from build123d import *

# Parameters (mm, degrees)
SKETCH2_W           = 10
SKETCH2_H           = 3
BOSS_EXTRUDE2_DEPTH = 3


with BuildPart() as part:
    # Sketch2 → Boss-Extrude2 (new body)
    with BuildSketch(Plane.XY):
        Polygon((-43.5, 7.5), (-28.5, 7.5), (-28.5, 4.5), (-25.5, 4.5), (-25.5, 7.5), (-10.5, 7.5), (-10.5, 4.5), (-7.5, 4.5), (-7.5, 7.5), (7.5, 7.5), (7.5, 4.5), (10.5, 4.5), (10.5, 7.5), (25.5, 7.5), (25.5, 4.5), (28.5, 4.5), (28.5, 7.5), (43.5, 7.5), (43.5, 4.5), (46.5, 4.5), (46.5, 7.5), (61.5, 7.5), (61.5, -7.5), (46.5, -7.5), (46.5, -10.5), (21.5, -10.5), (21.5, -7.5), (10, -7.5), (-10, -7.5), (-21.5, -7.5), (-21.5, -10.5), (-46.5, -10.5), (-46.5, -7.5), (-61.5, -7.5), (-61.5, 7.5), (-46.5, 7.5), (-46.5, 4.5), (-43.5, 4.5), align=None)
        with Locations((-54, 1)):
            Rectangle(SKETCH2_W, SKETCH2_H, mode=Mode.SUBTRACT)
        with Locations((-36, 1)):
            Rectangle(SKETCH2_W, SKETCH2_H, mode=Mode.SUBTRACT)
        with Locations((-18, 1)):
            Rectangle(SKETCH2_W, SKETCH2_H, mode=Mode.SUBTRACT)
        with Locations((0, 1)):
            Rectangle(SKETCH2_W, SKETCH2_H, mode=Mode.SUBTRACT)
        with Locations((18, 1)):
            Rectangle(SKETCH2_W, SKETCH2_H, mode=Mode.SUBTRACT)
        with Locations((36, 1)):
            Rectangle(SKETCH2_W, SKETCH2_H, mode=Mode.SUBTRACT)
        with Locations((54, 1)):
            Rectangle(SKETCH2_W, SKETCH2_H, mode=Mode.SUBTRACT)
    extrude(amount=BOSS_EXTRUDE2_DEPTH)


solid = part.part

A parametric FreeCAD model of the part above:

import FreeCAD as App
import Part
import Sketcher
Q = App.Units.Quantity

doc = App.newDocument("Part")
body = doc.addObject("PartDesign::Body", "Body")

# Sketch on XY plane
sketch1 = doc.addObject("Sketcher::SketchObject", "Sketch")
body.addObject(sketch1)
sketch1.AttachmentSupport = (doc.XY_Plane, [""])
sketch1.MapMode = "FlatFace"
sketch1.addGeometry([
    Part.LineSegment(App.Vector(-28.5, 7.5, 0), App.Vector(-43.5, 7.5, 0)),  # 0
    Part.LineSegment(App.Vector(-43.5, 7.5, 0), App.Vector(-43.5, 4.5, 0)),  # 1
    Part.LineSegment(App.Vector(-43.5, 4.5, 0), App.Vector(-46.5, 4.5, 0)),  # 2
    Part.LineSegment(App.Vector(-46.5, 4.5, 0), App.Vector(-46.5, 7.5, 0)),  # 3
    Part.LineSegment(App.Vector(-46.5, 7.5, 0), App.Vector(-61.5, 7.5, 0)),  # 4
    Part.LineSegment(App.Vector(-61.5, 7.5, 0), App.Vector(-61.5, -7.5, 0)),  # 5
    Part.LineSegment(App.Vector(-61.5, -7.5, 0), App.Vector(-46.5, -7.5, 0)),  # 6
    Part.LineSegment(App.Vector(-46.5, -7.5, 0), App.Vector(-46.5, -10.5, 0)),  # 7
    Part.LineSegment(App.Vector(-46.5, -10.5, 0), App.Vector(-21.5, -10.5, 0)),  # 8
    Part.LineSegment(App.Vector(-21.5, -10.5, 0), App.Vector(-21.5, -7.5, 0)),  # 9
    Part.LineSegment(App.Vector(-21.5, -7.5, 0), App.Vector(21.5, -7.5, 0)),  # 10
    Part.LineSegment(App.Vector(21.5, -7.5, 0), App.Vector(21.5, -10.5, 0)),  # 11
    Part.LineSegment(App.Vector(21.5, -10.5, 0), App.Vector(46.5, -10.5, 0)),  # 12
    Part.LineSegment(App.Vector(46.5, -10.5, 0), App.Vector(46.5, -7.5, 0)),  # 13
    Part.LineSegment(App.Vector(46.5, -7.5, 0), App.Vector(61.5, -7.5, 0)),  # 14
    Part.LineSegment(App.Vector(61.5, -7.5, 0), App.Vector(61.5, 7.5, 0)),  # 15
    Part.LineSegment(App.Vector(61.5, 7.5, 0), App.Vector(46.5, 7.5, 0)),  # 16
    Part.LineSegment(App.Vector(46.5, 7.5, 0), App.Vector(46.5, 4.5, 0)),  # 17
    Part.LineSegment(App.Vector(46.5, 4.5, 0), App.Vector(43.5, 4.5, 0)),  # 18
    Part.LineSegment(App.Vector(43.5, 4.5, 0), App.Vector(43.5, 7.5, 0)),  # 19
    Part.LineSegment(App.Vector(43.5, 7.5, 0), App.Vector(28.5, 7.5, 0)),  # 20
    Part.LineSegment(App.Vector(28.5, 7.5, 0), App.Vector(28.5, 4.5, 0)),  # 21
    Part.LineSegment(App.Vector(28.5, 4.5, 0), App.Vector(25.5, 4.5, 0)),  # 22
    Part.LineSegment(App.Vector(25.5, 4.5, 0), App.Vector(25.5, 7.5, 0)),  # 23
    Part.LineSegment(App.Vector(25.5, 7.5, 0), App.Vector(10.5, 7.5, 0)),  # 24
    Part.LineSegment(App.Vector(10.5, 7.5, 0), App.Vector(10.5, 4.5, 0)),  # 25
    Part.LineSegment(App.Vector(10.5, 4.5, 0), App.Vector(7.5, 4.5, 0)),  # 26
    Part.LineSegment(App.Vector(7.5, 4.5, 0), App.Vector(7.5, 7.5, 0)),  # 27
    Part.LineSegment(App.Vector(7.5, 7.5, 0), App.Vector(-7.5, 7.5, 0)),  # 28
    Part.LineSegment(App.Vector(-7.5, 7.5, 0), App.Vector(-7.5, 4.5, 0)),  # 29
    Part.LineSegment(App.Vector(-7.5, 4.5, 0), App.Vector(-10.5, 4.5, 0)),  # 30
    Part.LineSegment(App.Vector(-10.5, 4.5, 0), App.Vector(-10.5, 7.5, 0)),  # 31
    Part.LineSegment(App.Vector(-10.5, 7.5, 0), App.Vector(-25.5, 7.5, 0)),  # 32
    Part.LineSegment(App.Vector(-25.5, 7.5, 0), App.Vector(-25.5, 4.5, 0)),  # 33
    Part.LineSegment(App.Vector(-25.5, 4.5, 0), App.Vector(-28.5, 4.5, 0)),  # 34
    Part.LineSegment(App.Vector(-28.5, 4.5, 0), App.Vector(-28.5, 7.5, 0)),  # 35
    Part.LineSegment(App.Vector(49, -0.5, 0), App.Vector(49, 2.5, 0)),  # 36
    Part.LineSegment(App.Vector(49, 2.5, 0), App.Vector(59, 2.5, 0)),  # 37
    Part.LineSegment(App.Vector(59, 2.5, 0), App.Vector(59, -0.5, 0)),  # 38
    Part.LineSegment(App.Vector(59, -0.5, 0), App.Vector(49, -0.5, 0)),  # 39
    Part.LineSegment(App.Vector(31, -0.5, 0), App.Vector(31, 2.5, 0)),  # 40
    Part.LineSegment(App.Vector(31, 2.5, 0), App.Vector(41, 2.5, 0)),  # 41
    Part.LineSegment(App.Vector(41, 2.5, 0), App.Vector(41, -0.5, 0)),  # 42
    Part.LineSegment(App.Vector(41, -0.5, 0), App.Vector(31, -0.5, 0)),  # 43
    Part.LineSegment(App.Vector(13, -0.5, 0), App.Vector(13, 2.5, 0)),  # 44
    Part.LineSegment(App.Vector(13, 2.5, 0), App.Vector(23, 2.5, 0)),  # 45
    Part.LineSegment(App.Vector(23, 2.5, 0), App.Vector(23, -0.5, 0)),  # 46
    Part.LineSegment(App.Vector(23, -0.5, 0), App.Vector(13, -0.5, 0)),  # 47
    Part.LineSegment(App.Vector(-5, -0.5, 0), App.Vector(-5, 2.5, 0)),  # 48
    Part.LineSegment(App.Vector(-5, 2.5, 0), App.Vector(5, 2.5, 0)),  # 49
    Part.LineSegment(App.Vector(5, 2.5, 0), App.Vector(5, -0.5, 0)),  # 50
    Part.LineSegment(App.Vector(5, -0.5, 0), App.Vector(-5, -0.5, 0)),  # 51
    Part.LineSegment(App.Vector(-23, -0.5, 0), App.Vector(-23, 2.5, 0)),  # 52
    Part.LineSegment(App.Vector(-23, 2.5, 0), App.Vector(-13, 2.5, 0)),  # 53
    Part.LineSegment(App.Vector(-13, 2.5, 0), App.Vector(-13, -0.5, 0)),  # 54
    Part.LineSegment(App.Vector(-13, -0.5, 0), App.Vector(-23, -0.5, 0)),  # 55
    Part.LineSegment(App.Vector(-41, -0.5, 0), App.Vector(-41, 2.5, 0)),  # 56
    Part.LineSegment(App.Vector(-41, 2.5, 0), App.Vector(-31, 2.5, 0)),  # 57
    Part.LineSegment(App.Vector(-31, 2.5, 0), App.Vector(-31, -0.5, 0)),  # 58
    Part.LineSegment(App.Vector(-31, -0.5, 0), App.Vector(-41, -0.5, 0)),  # 59
    Part.LineSegment(App.Vector(-59, -0.5, 0), App.Vector(-59, 2.5, 0)),  # 60
    Part.LineSegment(App.Vector(-59, 2.5, 0), App.Vector(-49, 2.5, 0)),  # 61
    Part.LineSegment(App.Vector(-49, 2.5, 0), App.Vector(-49, -0.5, 0)),  # 62
    Part.LineSegment(App.Vector(-49, -0.5, 0), App.Vector(-59, -0.5, 0)),  # 63
], False)
sketch1.addConstraint([
    Sketcher.Constraint("Coincident", 0, 2, 1, 1),
    Sketcher.Constraint("Coincident", 1, 2, 2, 1),
    Sketcher.Constraint("Coincident", 2, 2, 3, 1),
    Sketcher.Constraint("Coincident", 3, 2, 4, 1),
    Sketcher.Constraint("Coincident", 4, 2, 5, 1),
    Sketcher.Constraint("Coincident", 5, 2, 6, 1),
    Sketcher.Constraint("Coincident", 6, 2, 7, 1),
    Sketcher.Constraint("Coincident", 7, 2, 8, 1),
    Sketcher.Constraint("Coincident", 8, 2, 9, 1),
    Sketcher.Constraint("Coincident", 9, 2, 10, 1),
    Sketcher.Constraint("Coincident", 10, 2, 11, 1),
    Sketcher.Constraint("Coincident", 11, 2, 12, 1),
    Sketcher.Constraint("Coincident", 12, 2, 13, 1),
    Sketcher.Constraint("Coincident", 13, 2, 14, 1),
    Sketcher.Constraint("Coincident", 14, 2, 15, 1),
    Sketcher.Constraint("Coincident", 15, 2, 16, 1),
    Sketcher.Constraint("Coincident", 16, 2, 17, 1),
    Sketcher.Constraint("Coincident", 17, 2, 18, 1),
    Sketcher.Constraint("Coincident", 18, 2, 19, 1),
    Sketcher.Constraint("Coincident", 19, 2, 20, 1),
    Sketcher.Constraint("Coincident", 20, 2, 21, 1),
    Sketcher.Constraint("Coincident", 21, 2, 22, 1),
    Sketcher.Constraint("Coincident", 22, 2, 23, 1),
    Sketcher.Constraint("Coincident", 23, 2, 24, 1),
    Sketcher.Constraint("Coincident", 24, 2, 25, 1),
    Sketcher.Constraint("Coincident", 25, 2, 26, 1),
    Sketcher.Constraint("Coincident", 26, 2, 27, 1),
    Sketcher.Constraint("Coincident", 27, 2, 28, 1),
    Sketcher.Constraint("Coincident", 28, 2, 29, 1),
    Sketcher.Constraint("Coincident", 29, 2, 30, 1),
    Sketcher.Constraint("Coincident", 30, 2, 31, 1),
    Sketcher.Constraint("Coincident", 31, 2, 32, 1),
    Sketcher.Constraint("Coincident", 32, 2, 33, 1),
    Sketcher.Constraint("Coincident", 33, 2, 34, 1),
    Sketcher.Constraint("Coincident", 34, 2, 35, 1),
    Sketcher.Constraint("Coincident", 35, 2, 0, 1),
    Sketcher.Constraint("Coincident", 36, 2, 37, 1),
    Sketcher.Constraint("Coincident", 37, 2, 38, 1),
    Sketcher.Constraint("Coincident", 38, 2, 39, 1),
    Sketcher.Constraint("Coincident", 39, 2, 36, 1),
    Sketcher.Constraint("Coincident", 40, 2, 41, 1),
    Sketcher.Constraint("Coincident", 41, 2, 42, 1),
    Sketcher.Constraint("Coincident", 42, 2, 43, 1),
    Sketcher.Constraint("Coincident", 43, 2, 40, 1),
    Sketcher.Constraint("Coincident", 44, 2, 45, 1),
    Sketcher.Constraint("Coincident", 45, 2, 46, 1),
    Sketcher.Constraint("Coincident", 46, 2, 47, 1),
    Sketcher.Constraint("Coincident", 47, 2, 44, 1),
    Sketcher.Constraint("Coincident", 48, 2, 49, 1),
    Sketcher.Constraint("Coincident", 49, 2, 50, 1),
    Sketcher.Constraint("Coincident", 50, 2, 51, 1),
    Sketcher.Constraint("Coincident", 51, 2, 48, 1),
    Sketcher.Constraint("Coincident", 52, 2, 53, 1),
    Sketcher.Constraint("Coincident", 53, 2, 54, 1),
    Sketcher.Constraint("Coincident", 54, 2, 55, 1),
    Sketcher.Constraint("Coincident", 55, 2, 52, 1),
    Sketcher.Constraint("Coincident", 56, 2, 57, 1),
    Sketcher.Constraint("Coincident", 57, 2, 58, 1),
    Sketcher.Constraint("Coincident", 58, 2, 59, 1),
    Sketcher.Constraint("Coincident", 59, 2, 56, 1),
    Sketcher.Constraint("Coincident", 60, 2, 61, 1),
    Sketcher.Constraint("Coincident", 61, 2, 62, 1),
    Sketcher.Constraint("Coincident", 62, 2, 63, 1),
    Sketcher.Constraint("Coincident", 63, 2, 60, 1),
    Sketcher.Constraint("Horizontal", 0),
    Sketcher.Constraint("Vertical", 1),
    Sketcher.Constraint("Horizontal", 2),
    Sketcher.Constraint("Vertical", 3),
    Sketcher.Constraint("Horizontal", 4),
    Sketcher.Constraint("Vertical", 5),
    Sketcher.Constraint("Horizontal", 6),
    Sketcher.Constraint("Vertical", 7),
    Sketcher.Constraint("Horizontal", 8),
    Sketcher.Constraint("Vertical", 9),
    Sketcher.Constraint("Horizontal", 10),
    Sketcher.Constraint("Vertical", 11),
    Sketcher.Constraint("Horizontal", 12),
    Sketcher.Constraint("Vertical", 13),
    Sketcher.Constraint("Horizontal", 14),
    Sketcher.Constraint("Vertical", 15),
    Sketcher.Constraint("Horizontal", 16),
    Sketcher.Constraint("Vertical", 17),
    Sketcher.Constraint("Horizontal", 18),
    Sketcher.Constraint("Vertical", 19),
    Sketcher.Constraint("Horizontal", 20),
    Sketcher.Constraint("Vertical", 21),
    Sketcher.Constraint("Horizontal", 22),
    Sketcher.Constraint("Vertical", 23),
    Sketcher.Constraint("Horizontal", 24),
    Sketcher.Constraint("Vertical", 25),
    Sketcher.Constraint("Horizontal", 26),
    Sketcher.Constraint("Vertical", 27),
    Sketcher.Constraint("Horizontal", 28),
    Sketcher.Constraint("Vertical", 29),
    Sketcher.Constraint("Horizontal", 30),
    Sketcher.Constraint("Vertical", 31),
    Sketcher.Constraint("Horizontal", 32),
    Sketcher.Constraint("Vertical", 33),
    Sketcher.Constraint("Horizontal", 34),
    Sketcher.Constraint("Vertical", 35),
    Sketcher.Constraint("Vertical", 36),
    Sketcher.Constraint("Horizontal", 37),
    Sketcher.Constraint("Vertical", 38),
    Sketcher.Constraint("Horizontal", 39),
    Sketcher.Constraint("Vertical", 40),
    Sketcher.Constraint("Horizontal", 41),
    Sketcher.Constraint("Vertical", 42),
    Sketcher.Constraint("Horizontal", 43),
    Sketcher.Constraint("Vertical", 44),
    Sketcher.Constraint("Horizontal", 45),
    Sketcher.Constraint("Vertical", 46),
    Sketcher.Constraint("Horizontal", 47),
    Sketcher.Constraint("Vertical", 48),
    Sketcher.Constraint("Horizontal", 49),
    Sketcher.Constraint("Vertical", 50),
    Sketcher.Constraint("Horizontal", 51),
    Sketcher.Constraint("Vertical", 52),
    Sketcher.Constraint("Horizontal", 53),
    Sketcher.Constraint("Vertical", 54),
    Sketcher.Constraint("Horizontal", 55),
    Sketcher.Constraint("Vertical", 56),
    Sketcher.Constraint("Horizontal", 57),
    Sketcher.Constraint("Vertical", 58),
    Sketcher.Constraint("Horizontal", 59),
    Sketcher.Constraint("Vertical", 60),
    Sketcher.Constraint("Horizontal", 61),
    Sketcher.Constraint("Vertical", 62),
    Sketcher.Constraint("Horizontal", 63),
    Sketcher.Constraint("Symmetric", 3, 2, 13, 2, -1, 1),
    Sketcher.Constraint("Symmetric", 5, 2, 15, 2, -1, 1),
    Sketcher.Constraint("Symmetric", 8, 2, 11, 2, -2),
    Sketcher.Constraint("Symmetric", 6, 2, 13, 2, -2),
    Sketcher.Constraint("Symmetric", 2, 2, 17, 2, -2),
    Sketcher.Constraint("Symmetric", 0, 2, 19, 2, -2),
    Sketcher.Constraint("Symmetric", 26, 2, 29, 2, -2),
    Sketcher.Constraint("Symmetric", 24, 2, 31, 2, -2),
    Sketcher.Constraint("Symmetric", 22, 2, 33, 2, -2),
    Sketcher.Constraint("Symmetric", 45, 2, 52, 2, -2),
    Sketcher.Constraint("Symmetric", 47, 2, 54, 2, -2),
    Sketcher.Constraint("Symmetric", 41, 2, 56, 2, -2),
    Sketcher.Constraint("Symmetric", 43, 2, 58, 2, -2),
    Sketcher.Constraint("Symmetric", 37, 2, 60, 2, -2),
    Sketcher.Constraint("Symmetric", 39, 2, 62, 2, -2),
    Sketcher.Constraint("Horizontal", 0, 2, 3, 2),
    Sketcher.Constraint("Horizontal", 6, 2, 9, 2),
    Sketcher.Constraint("Horizontal", 18, 2, 21, 2),
    Sketcher.Constraint("Horizontal", 20, 2, 23, 2),
    Sketcher.Constraint("Horizontal", 22, 2, 25, 2),
    Sketcher.Constraint("Horizontal", 24, 2, 27, 2),
    Sketcher.Constraint("Horizontal", 37, 2, 40, 2),
    Sketcher.Constraint("Horizontal", 39, 2, 42, 2),
    Sketcher.Constraint("Horizontal", 41, 2, 44, 2),
    Sketcher.Constraint("Horizontal", 43, 2, 46, 2),
    Sketcher.Constraint("Horizontal", 45, 2, 48, 2),
    Sketcher.Constraint("Horizontal", 47, 2, 50, 2),
    Sketcher.Constraint("Equal", 0, 4),
    Sketcher.Constraint("Equal", 16, 20),
    Sketcher.Constraint("Equal", 18, 22),
    Sketcher.Constraint("Equal", 20, 24),
    Sketcher.Constraint("Equal", 22, 26),
    Sketcher.Constraint("Equal", 24, 28),
    Sketcher.Constraint("Equal", 39, 41),
    Sketcher.Constraint("Equal", 43, 45),
    Sketcher.Constraint("Equal", 47, 49),
    Sketcher.Constraint("Equal", 34, 1),
    Sketcher.Constraint("Equal", 32, 5),
    Sketcher.Constraint("Equal", 3, 7),
    Sketcher.Constraint("Equal", 35, 36),
    Sketcher.Constraint("DistanceX", 0, 2, 0, 1, Q("15 mm")),
    Sketcher.Constraint("DistanceX", 2, 2, 2, 1, Q("3 mm")),
    Sketcher.Constraint("DistanceX", 8, 1, 8, 2, Q("25 mm")),
    Sketcher.Constraint("DistanceX", 37, 1, 37, 2, Q("10 mm")),
    Sketcher.Constraint("DistanceX", -1, 1, 36, 2, Q("49 mm")),
    Sketcher.Constraint("DistanceX", -1, 1, 40, 2, Q("31 mm")),
    Sketcher.Constraint("DistanceX", -1, 1, 44, 2, Q("13 mm")),
    Sketcher.Constraint("DistanceX", 48, 2, -1, 1, Q("5 mm")),
    Sketcher.Constraint("DistanceY", -1, 1, 36, 2, Q("2.5 mm")),
])
pad1 = doc.addObject("PartDesign::Pad", "Pad")
body.addObject(pad1)
pad1.Profile = sketch1
pad1.Length = 3

doc.recompute()
